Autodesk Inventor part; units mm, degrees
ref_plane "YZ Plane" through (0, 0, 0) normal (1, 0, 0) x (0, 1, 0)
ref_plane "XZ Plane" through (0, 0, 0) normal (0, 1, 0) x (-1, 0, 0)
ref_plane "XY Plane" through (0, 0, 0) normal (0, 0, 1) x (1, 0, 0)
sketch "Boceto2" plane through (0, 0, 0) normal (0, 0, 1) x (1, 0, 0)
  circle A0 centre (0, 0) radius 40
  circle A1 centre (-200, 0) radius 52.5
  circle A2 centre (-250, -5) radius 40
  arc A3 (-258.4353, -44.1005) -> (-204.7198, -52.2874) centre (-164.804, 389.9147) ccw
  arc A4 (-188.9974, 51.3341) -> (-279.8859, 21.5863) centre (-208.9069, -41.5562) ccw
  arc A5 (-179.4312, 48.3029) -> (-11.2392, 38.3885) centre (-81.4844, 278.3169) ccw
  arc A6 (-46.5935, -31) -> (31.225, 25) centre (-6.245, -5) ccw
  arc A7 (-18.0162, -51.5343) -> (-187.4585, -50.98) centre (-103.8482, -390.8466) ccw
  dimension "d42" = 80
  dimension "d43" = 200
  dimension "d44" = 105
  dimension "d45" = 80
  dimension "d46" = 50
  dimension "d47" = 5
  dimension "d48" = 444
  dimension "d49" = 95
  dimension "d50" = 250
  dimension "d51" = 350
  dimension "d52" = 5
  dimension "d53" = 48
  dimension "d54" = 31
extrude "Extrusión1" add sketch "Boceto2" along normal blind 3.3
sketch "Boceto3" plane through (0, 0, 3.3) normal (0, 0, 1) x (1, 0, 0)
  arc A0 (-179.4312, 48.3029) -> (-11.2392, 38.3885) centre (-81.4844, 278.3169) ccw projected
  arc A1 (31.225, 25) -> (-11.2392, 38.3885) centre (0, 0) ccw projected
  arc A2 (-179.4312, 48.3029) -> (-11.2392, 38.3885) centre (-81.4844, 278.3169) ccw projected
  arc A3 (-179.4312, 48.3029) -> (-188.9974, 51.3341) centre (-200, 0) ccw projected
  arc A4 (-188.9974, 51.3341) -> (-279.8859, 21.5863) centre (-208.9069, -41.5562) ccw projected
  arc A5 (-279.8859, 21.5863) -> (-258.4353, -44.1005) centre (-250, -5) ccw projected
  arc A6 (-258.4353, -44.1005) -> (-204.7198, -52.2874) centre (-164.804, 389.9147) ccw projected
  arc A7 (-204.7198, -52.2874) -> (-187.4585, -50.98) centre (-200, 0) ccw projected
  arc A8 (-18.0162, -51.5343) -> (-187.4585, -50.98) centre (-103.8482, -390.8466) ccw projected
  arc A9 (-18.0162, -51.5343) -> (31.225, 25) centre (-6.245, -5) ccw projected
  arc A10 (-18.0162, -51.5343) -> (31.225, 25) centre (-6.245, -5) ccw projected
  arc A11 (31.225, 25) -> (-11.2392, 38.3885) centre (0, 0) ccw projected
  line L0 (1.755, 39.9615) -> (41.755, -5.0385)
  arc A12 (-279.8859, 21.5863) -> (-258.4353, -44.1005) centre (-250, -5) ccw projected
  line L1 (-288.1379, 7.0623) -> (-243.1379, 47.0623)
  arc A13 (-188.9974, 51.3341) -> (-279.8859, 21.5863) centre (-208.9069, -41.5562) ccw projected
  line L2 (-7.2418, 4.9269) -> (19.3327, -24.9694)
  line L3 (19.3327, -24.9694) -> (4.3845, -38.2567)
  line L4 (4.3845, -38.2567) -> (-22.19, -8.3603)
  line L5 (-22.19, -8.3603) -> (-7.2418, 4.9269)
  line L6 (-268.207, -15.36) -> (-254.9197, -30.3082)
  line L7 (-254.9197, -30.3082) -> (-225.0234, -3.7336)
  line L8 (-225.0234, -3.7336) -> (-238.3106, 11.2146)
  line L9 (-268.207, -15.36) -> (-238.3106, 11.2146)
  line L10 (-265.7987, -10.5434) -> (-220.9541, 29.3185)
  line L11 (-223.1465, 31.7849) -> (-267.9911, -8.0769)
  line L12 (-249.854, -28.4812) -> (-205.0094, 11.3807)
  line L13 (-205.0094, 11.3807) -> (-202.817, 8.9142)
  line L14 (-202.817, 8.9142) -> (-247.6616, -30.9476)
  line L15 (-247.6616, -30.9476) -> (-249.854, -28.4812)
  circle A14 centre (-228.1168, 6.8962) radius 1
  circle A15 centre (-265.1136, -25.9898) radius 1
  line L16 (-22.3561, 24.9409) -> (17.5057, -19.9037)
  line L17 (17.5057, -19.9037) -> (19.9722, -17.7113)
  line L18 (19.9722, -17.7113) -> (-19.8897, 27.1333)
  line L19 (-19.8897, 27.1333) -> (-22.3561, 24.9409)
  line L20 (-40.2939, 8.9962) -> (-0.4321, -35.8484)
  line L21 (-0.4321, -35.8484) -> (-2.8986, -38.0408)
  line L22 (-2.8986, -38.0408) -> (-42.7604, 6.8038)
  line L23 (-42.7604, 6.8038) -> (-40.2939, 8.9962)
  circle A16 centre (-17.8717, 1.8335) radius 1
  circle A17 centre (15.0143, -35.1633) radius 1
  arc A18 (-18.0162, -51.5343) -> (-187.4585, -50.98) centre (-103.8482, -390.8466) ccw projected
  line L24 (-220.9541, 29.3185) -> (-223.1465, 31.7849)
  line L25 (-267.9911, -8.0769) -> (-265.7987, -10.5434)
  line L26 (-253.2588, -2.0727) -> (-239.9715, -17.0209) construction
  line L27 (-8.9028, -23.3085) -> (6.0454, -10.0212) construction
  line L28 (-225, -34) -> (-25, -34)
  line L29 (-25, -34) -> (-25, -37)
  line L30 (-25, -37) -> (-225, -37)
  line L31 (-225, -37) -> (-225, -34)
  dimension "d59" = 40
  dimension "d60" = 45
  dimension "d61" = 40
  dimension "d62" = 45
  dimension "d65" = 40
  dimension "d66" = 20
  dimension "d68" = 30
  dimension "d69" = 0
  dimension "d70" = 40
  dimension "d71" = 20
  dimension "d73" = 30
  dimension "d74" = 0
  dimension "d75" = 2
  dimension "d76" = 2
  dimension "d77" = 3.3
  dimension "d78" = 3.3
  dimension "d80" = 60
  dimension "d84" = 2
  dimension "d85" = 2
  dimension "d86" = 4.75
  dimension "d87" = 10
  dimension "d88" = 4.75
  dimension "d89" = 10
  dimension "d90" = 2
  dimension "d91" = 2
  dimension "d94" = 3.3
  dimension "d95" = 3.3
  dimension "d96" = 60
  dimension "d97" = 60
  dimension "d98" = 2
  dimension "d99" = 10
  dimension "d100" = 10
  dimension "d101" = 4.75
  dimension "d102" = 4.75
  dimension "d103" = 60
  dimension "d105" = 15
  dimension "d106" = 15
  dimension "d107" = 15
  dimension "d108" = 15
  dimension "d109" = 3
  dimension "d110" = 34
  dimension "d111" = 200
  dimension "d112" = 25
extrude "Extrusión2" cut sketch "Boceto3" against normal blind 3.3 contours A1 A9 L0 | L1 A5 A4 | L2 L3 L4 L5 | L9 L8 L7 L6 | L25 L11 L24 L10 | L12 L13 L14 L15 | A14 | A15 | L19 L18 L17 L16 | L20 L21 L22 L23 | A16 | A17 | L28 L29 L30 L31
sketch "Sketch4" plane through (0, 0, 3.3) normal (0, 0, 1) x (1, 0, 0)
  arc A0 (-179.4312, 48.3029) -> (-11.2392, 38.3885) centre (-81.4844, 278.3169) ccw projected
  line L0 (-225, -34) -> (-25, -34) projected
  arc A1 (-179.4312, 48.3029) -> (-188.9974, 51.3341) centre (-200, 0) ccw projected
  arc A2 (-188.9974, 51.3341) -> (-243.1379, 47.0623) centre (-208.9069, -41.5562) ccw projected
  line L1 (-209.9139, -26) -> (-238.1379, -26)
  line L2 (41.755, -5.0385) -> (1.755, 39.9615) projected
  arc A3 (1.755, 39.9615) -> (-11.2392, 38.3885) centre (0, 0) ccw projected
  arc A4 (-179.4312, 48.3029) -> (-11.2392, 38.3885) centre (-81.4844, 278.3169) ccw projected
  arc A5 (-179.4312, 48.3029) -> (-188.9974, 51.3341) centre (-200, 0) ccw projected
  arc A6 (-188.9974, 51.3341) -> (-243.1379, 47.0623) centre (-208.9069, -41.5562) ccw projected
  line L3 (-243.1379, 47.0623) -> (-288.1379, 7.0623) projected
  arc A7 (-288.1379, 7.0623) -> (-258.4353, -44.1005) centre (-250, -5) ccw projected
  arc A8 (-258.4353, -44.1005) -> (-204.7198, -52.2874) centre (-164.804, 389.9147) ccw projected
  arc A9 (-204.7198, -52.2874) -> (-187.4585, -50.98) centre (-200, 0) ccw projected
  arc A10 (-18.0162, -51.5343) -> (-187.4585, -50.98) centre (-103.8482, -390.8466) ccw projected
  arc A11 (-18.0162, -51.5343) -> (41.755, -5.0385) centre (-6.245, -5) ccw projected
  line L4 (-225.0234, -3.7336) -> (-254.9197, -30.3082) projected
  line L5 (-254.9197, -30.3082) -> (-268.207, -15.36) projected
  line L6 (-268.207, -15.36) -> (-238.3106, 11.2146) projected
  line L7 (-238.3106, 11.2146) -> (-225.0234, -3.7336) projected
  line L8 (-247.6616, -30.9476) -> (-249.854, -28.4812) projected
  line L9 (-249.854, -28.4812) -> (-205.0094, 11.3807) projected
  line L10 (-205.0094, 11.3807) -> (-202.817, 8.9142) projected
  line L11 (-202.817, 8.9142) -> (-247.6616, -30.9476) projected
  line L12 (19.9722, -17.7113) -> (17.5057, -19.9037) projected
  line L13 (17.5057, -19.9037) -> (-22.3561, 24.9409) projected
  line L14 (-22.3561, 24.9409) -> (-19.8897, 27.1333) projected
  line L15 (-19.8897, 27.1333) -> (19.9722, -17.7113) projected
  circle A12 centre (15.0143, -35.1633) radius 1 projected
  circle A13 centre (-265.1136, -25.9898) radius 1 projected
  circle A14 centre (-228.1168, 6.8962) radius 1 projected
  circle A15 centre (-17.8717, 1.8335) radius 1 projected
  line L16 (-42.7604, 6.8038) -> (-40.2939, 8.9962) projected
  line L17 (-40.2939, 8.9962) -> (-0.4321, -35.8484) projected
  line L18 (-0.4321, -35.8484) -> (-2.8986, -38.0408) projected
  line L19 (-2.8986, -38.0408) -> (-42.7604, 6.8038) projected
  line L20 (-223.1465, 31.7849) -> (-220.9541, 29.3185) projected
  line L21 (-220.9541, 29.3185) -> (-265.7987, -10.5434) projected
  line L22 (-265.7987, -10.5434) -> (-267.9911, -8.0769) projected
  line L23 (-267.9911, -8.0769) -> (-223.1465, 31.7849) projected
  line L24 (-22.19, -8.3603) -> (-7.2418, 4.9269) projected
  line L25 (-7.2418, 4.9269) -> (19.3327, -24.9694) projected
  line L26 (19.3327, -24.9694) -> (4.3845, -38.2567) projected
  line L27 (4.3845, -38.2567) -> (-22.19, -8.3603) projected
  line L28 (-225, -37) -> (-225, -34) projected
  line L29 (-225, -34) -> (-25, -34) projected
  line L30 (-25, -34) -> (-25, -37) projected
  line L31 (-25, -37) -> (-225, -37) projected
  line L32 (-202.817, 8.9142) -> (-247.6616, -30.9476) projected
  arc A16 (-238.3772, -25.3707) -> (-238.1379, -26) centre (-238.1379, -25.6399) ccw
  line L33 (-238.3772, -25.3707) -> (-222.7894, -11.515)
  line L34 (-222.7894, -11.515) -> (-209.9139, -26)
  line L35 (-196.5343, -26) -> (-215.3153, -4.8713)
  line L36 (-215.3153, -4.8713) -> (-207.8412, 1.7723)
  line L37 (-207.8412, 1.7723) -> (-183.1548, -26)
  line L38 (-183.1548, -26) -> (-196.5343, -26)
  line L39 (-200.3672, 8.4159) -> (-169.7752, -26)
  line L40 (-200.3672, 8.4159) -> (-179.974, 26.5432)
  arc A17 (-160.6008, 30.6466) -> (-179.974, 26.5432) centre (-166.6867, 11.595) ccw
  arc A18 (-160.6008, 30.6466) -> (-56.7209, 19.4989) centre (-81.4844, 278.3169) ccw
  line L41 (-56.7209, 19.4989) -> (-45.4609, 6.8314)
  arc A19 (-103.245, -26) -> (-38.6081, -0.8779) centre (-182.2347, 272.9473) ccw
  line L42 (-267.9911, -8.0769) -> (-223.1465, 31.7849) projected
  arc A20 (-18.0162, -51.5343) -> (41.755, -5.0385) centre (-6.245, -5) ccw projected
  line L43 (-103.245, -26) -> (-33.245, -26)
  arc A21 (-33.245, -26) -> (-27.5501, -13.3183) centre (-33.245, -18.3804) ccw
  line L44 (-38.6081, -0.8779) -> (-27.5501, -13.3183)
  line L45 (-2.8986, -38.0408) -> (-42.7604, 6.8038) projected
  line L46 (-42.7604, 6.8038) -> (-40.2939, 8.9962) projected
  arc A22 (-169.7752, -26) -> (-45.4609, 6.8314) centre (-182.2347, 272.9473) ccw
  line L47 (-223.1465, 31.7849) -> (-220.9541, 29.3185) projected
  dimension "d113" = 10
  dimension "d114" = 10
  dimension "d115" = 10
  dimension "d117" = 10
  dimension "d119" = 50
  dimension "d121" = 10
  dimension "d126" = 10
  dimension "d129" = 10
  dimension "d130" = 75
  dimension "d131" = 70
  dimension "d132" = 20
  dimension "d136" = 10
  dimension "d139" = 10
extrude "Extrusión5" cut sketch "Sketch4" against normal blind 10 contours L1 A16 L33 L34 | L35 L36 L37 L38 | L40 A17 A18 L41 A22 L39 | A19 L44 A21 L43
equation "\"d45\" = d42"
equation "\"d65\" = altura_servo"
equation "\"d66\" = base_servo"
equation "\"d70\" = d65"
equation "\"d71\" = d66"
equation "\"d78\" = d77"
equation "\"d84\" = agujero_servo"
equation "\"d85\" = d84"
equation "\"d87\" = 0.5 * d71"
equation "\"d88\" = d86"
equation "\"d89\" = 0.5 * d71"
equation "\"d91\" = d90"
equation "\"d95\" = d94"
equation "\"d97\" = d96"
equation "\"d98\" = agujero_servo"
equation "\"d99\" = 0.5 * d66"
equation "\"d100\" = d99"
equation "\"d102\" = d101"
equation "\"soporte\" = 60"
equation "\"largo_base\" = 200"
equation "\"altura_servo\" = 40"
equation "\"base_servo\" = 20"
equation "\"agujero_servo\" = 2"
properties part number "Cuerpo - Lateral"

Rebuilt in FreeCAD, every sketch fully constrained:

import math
import FreeCAD as App
import Part
import Sketcher

V = App.Vector


def add_polygon(sketch, points):
    """Adds a closed chain of lines whose ends are joined by coincident constraints."""
    first, n = sketch.GeometryCount, len(points)
    for a, b in zip(points, points[1:] + points[:1]):
        sketch.addGeometry(Part.LineSegment(App.Vector(*a, 0), App.Vector(*b, 0)), False)
    for i in range(n):
        sketch.addConstraint(Sketcher.Constraint("Coincident", first + i, 2, first + (i + 1) % n, 1))

doc = App.newDocument("Part")
body = doc.addObject("PartDesign::Body", "Body")

# Sketch on XY plane
sketch1 = doc.addObject("Sketcher::SketchObject", "Sketch")
body.addObject(sketch1)
sketch1.AttachmentSupport = (doc.XY_Plane, [""])
sketch1.MapMode = "FlatFace"
sketch1.addGeometry(Part.ArcOfCircle(Part.Circle(V(0, 0, 0), V(0, 0, 1), 40), math.radians(39), math.radians(106)), False)
sketch1.addGeometry(Part.ArcOfCircle(Part.Circle(V(-81, 278, 0), V(0, 0, 1), 250), math.radians(-113), math.radians(-74)), False)
sketch1.addGeometry(Part.ArcOfCircle(Part.Circle(V(-200, 0, 0), V(0, 0, 1), 52), math.radians(66.93), math.radians(77.9)), False)
sketch1.addGeometry(Part.ArcOfCircle(Part.Circle(V(-209, -42, 0), V(0, 0, 1), 95), math.radians(78), math.radians(138)), False)
sketch1.addGeometry(Part.ArcOfCircle(Part.Circle(V(-250, -5, 0), V(0, 0, 1), 40), math.radians(138), math.radians(258)), False)
sketch1.addGeometry(Part.ArcOfCircle(Part.Circle(V(-165, 390, 0), V(0, 0, 1), 444), math.radians(-102.17), math.radians(-95.16)), False)
sketch1.addGeometry(Part.ArcOfCircle(Part.Circle(V(-200, 0, 0), V(0, 0, 1), 52), math.radians(-95.16), math.radians(-76.18)), False)
sketch1.addGeometry(Part.ArcOfCircle(Part.Circle(V(-104, -391, 0), V(0, 0, 1), 350), math.radians(76), math.radians(104)), False)
sketch1.addGeometry(Part.ArcOfCircle(Part.Circle(V(-6, -5, 0), V(0, 0, 1), 48), math.radians(-104), math.radians(39)), False)
sketch1.addConstraint(Sketcher.Constraint("Tangent", 0, 2, 1, 2))
sketch1.addConstraint(Sketcher.Constraint("Tangent", 1, 1, 2, 1))
sketch1.addConstraint(Sketcher.Constraint("Tangent", 2, 2, 3, 1))
sketch1.addConstraint(Sketcher.Constraint("Tangent", 3, 2, 4, 1))
sketch1.addConstraint(Sketcher.Constraint("Tangent", 4, 2, 5, 1))
sketch1.addConstraint(Sketcher.Constraint("Tangent", 5, 2, 6, 1))
sketch1.addConstraint(Sketcher.Constraint("Tangent", 6, 2, 7, 2))
sketch1.addConstraint(Sketcher.Constraint("Tangent", 7, 1, 8, 1))
sketch1.addConstraint(Sketcher.Constraint("Tangent", 8, 2, 0, 1))
sketch1.addConstraint(Sketcher.Constraint("Coincident", 0, 3, -1, 1))
sketch1.addConstraint(Sketcher.Constraint("Coincident", 6, 3, 2, 3))
sketch1.addConstraint(Sketcher.Constraint("Equal", 0, 4))
sketch1.addConstraint(Sketcher.Constraint("Equal", 2, 6))
sketch1.addConstraint(Sketcher.Constraint("PointOnObject", 2, 3, -1))
sketch1.addConstraint(Sketcher.Constraint("Horizontal", 4, 3, 8, 3))
sketch1.addConstraint(Sketcher.Constraint("Radius", 0, 40.0))
sketch1.addConstraint(Sketcher.Constraint("Radius", 1, 250.0))
sketch1.addConstraint(Sketcher.Constraint("Radius", 3, 95.0))
sketch1.addConstraint(Sketcher.Constraint("Radius", 7, 350.0))
sketch1.addConstraint(Sketcher.Constraint("Radius", 8, 48.0))
sketch1.addConstraint(Sketcher.Constraint("Radius", 2, 52.5))
sketch1.addConstraint(Sketcher.Constraint("DistanceX", 2, 3, -1, 1, 200.0))
sketch1.addConstraint(Sketcher.Constraint("DistanceX", 4, 3, -1, 1, 250.0))
sketch1.addConstraint(Sketcher.Constraint("DistanceY", 4, 3, -1, 1, 5.0))
sketch1.addConstraint(Sketcher.Constraint("Radius", 5, 443.9862))
pad1 = doc.addObject("PartDesign::Pad", "Pad")
body.addObject(pad1)
pad1.Profile = sketch1
pad1.Length = 3.3

# Sketch on XY plane
sketch2 = doc.addObject("Sketcher::SketchObject", "Sketch001")
body.addObject(sketch2)
sketch2.AttachmentSupport = (doc.XY_Plane, [""])
sketch2.MapMode = "FlatFace"
sketch2.AttachmentOffset = App.Placement(V(0, 0, 3.3), App.Rotation())
sketch2.addGeometry(Part.ArcOfCircle(Part.Circle(V(0, 0, 0), V(0, 0, 1), 40), math.radians(39), math.radians(87)), False)  # 0
sketch2.addGeometry(Part.LineSegment(V(1.8, 40, 0), V(41.8, -5, 0)), False)  # 1
sketch2.addGeometry(Part.ArcOfCircle(Part.Circle(V(-6.2, -5, 0), V(0, 0, 1), 48), math.radians(0), math.radians(39)), False)  # 2
sketch2.addGeometry(Part.LineSegment(V(-288.1, 7.1, 0), V(-243.1, 47.1, 0)), False)  # 3
sketch2.addGeometry(Part.ArcOfCircle(Part.Circle(V(-208.9, -41.6, 0), V(0, 0, 1), 95), math.radians(111), math.radians(138)), False)  # 4
sketch2.addGeometry(Part.ArcOfCircle(Part.Circle(V(-250, -5, 0), V(0, 0, 1), 40), math.radians(138), math.radians(162)), False)  # 5
add_polygon(sketch2, [(19.3, -25), (-7.2, 4.9), (-22.2, -8.4), (4.4, -38.3)])  # lines 6-9
add_polygon(sketch2, [(-238.3, 11.2), (-268.2, -15.4), (-254.9, -30.3), (-225, -3.7)])  # lines 10-13
add_polygon(sketch2, [(-268, -8.1), (-265.8, -10.5), (-221, 29.3), (-223.1, 31.8)])  # lines 14-17
add_polygon(sketch2, [(-205, 11.4), (-249.9, -28.5), (-247.7, -30.9), (-202.8, 8.9)])  # lines 18-21
sketch2.addGeometry(Part.Circle(V(-228.1, 6.9, 0), V(0, 0, 1), 1), False)  # 22
sketch2.addGeometry(Part.Circle(V(-265.1, -26, 0), V(0, 0, 1), 1), False)  # 23
add_polygon(sketch2, [(-19.9, 27.1), (-22.4, 24.9), (17.5, -19.9), (20, -17.7)])  # lines 24-27
add_polygon(sketch2, [(-0.4, -35.8), (-40.3, 9), (-42.8, 6.8), (-2.9, -38)])  # lines 28-31
sketch2.addGeometry(Part.Circle(V(-17.9, 1.8, 0), V(0, 0, 1), 1), False)  # 32
sketch2.addGeometry(Part.Circle(V(15, -35.2, 0), V(0, 0, 1), 1), False)  # 33
add_polygon(sketch2, [(-25, -34), (-225, -34), (-225, -37), (-25, -37)])  # lines 34-37
sketch2.addConstraint(Sketcher.Constraint("Coincident", 0, 2, 1, 1))
sketch2.addConstraint(Sketcher.Constraint("Coincident", 1, 2, 2, 1))
sketch2.addConstraint(Sketcher.Constraint("Tangent", 2, 2, 0, 1))
sketch2.addConstraint(Sketcher.Constraint("Coincident", 3, 2, 4, 1))
sketch2.addConstraint(Sketcher.Constraint("Tangent", 4, 2, 5, 1))
sketch2.addConstraint(Sketcher.Constraint("Coincident", 5, 2, 3, 1))
sketch2.addConstraint(Sketcher.Constraint("Horizontal", 34))
sketch2.addConstraint(Sketcher.Constraint("Vertical", 35))
sketch2.addConstraint(Sketcher.Constraint("Horizontal", 36))
sketch2.addConstraint(Sketcher.Constraint("Vertical", 37))
sketch2.addConstraint(Sketcher.Constraint("Coincident", 0, 3, -1, 1))
sketch2.addConstraint(Sketcher.Constraint("Equal", 0, 5))
sketch2.addConstraint(Sketcher.Constraint("Equal", 22, 23))
sketch2.addConstraint(Sketcher.Constraint("Equal", 23, 32))
sketch2.addConstraint(Sketcher.Constraint("Equal", 32, 33))
sketch2.addConstraint(Sketcher.Constraint("Perpendicular", 1, 3))
sketch2.addConstraint(Sketcher.Constraint("Perpendicular", 3, 6))
sketch2.addConstraint(Sketcher.Constraint("Perpendicular", 6, 7))
sketch2.addConstraint(Sketcher.Constraint("Perpendicular", 7, 8))
sketch2.addConstraint(Sketcher.Constraint("Perpendicular", 8, 9))
sketch2.addConstraint(Sketcher.Constraint("Parallel", 9, 10))
sketch2.addConstraint(Sketcher.Constraint("Perpendicular", 10, 11))
sketch2.addConstraint(Sketcher.Constraint("Perpendicular", 11, 12))
sketch2.addConstraint(Sketcher.Constraint("Perpendicular", 12, 13))
sketch2.addConstraint(Sketcher.Constraint("Parallel", 13, 14))
sketch2.addConstraint(Sketcher.Constraint("Perpendicular", 14, 15))
sketch2.addConstraint(Sketcher.Constraint("Perpendicular", 15, 16))
sketch2.addConstraint(Sketcher.Constraint("Perpendicular", 16, 17))
sketch2.addConstraint(Sketcher.Constraint("Parallel", 17, 18))
sketch2.addConstraint(Sketcher.Constraint("Perpendicular", 18, 19))
sketch2.addConstraint(Sketcher.Constraint("Perpendicular", 19, 20))
sketch2.addConstraint(Sketcher.Constraint("Perpendicular", 20, 21))
sketch2.addConstraint(Sketcher.Constraint("Perpendicular", 21, 24))
sketch2.addConstraint(Sketcher.Constraint("Perpendicular", 24, 25))
sketch2.addConstraint(Sketcher.Constraint("Perpendicular", 25, 26))
sketch2.addConstraint(Sketcher.Constraint("Perpendicular", 26, 27))
sketch2.addConstraint(Sketcher.Constraint("Parallel", 27, 28))
sketch2.addConstraint(Sketcher.Constraint("Perpendicular", 28, 29))
sketch2.addConstraint(Sketcher.Constraint("Perpendicular", 29, 30))
sketch2.addConstraint(Sketcher.Constraint("Perpendicular", 30, 31))
sketch2.addConstraint(Sketcher.Constraint("Horizontal", 2, 3, 5, 3))
sketch2.addConstraint(Sketcher.Constraint("Equal", 1, 3))
sketch2.addConstraint(Sketcher.Constraint("Equal", 8, 10))
sketch2.addConstraint(Sketcher.Constraint("Equal", 9, 11))
sketch2.addConstraint(Sketcher.Constraint("Equal", 17, 18))
sketch2.addConstraint(Sketcher.Constraint("Equal", 16, 19))
sketch2.addConstraint(Sketcher.Constraint("Equal", 21, 24))
sketch2.addConstraint(Sketcher.Constraint("Equal", 20, 25))
sketch2.addConstraint(Sketcher.Constraint("Equal", 27, 28))
sketch2.addConstraint(Sketcher.Constraint("Equal", 26, 29))
sketch2.addConstraint(Sketcher.Constraint("Diameter", 22, 2.0))
sketch2.addConstraint(Sketcher.Constraint("Radius", 0, 40.0))
sketch2.addConstraint(Sketcher.Constraint("DistanceX", 34, 2, 34, 1, 200.0))
sketch2.addConstraint(Sketcher.Constraint("DistanceY", 35, 2, 35, 1, 3.0))
sketch2.addConstraint(Sketcher.Constraint("Distance", 6, 40.0))
sketch2.addConstraint(Sketcher.Constraint("Distance", 7, 20.0))
sketch2.addConstraint(Sketcher.Constraint("Distance", 15, 60.0))
sketch2.addConstraint(Sketcher.Constraint("DistanceY", -1, 1, 2, 2, 25.0))
sketch2.addConstraint(Sketcher.Constraint("DistanceY", 34, 2, -1, 1, 34.0))
sketch2.addConstraint(Sketcher.Constraint("DistanceX", 36, 2, -1, 1, 25.0))
sketch2.addConstraint(Sketcher.Constraint("Radius", 2, 48.0))
sketch2.addConstraint(Sketcher.Constraint("Radius", 4, 95.0))
sketch2.addConstraint(Sketcher.Constraint("DistanceX", 0, 2, 1, 2, 40.0))
sketch2.addConstraint(Sketcher.Constraint("DistanceY", 1, 2, 0, 2, 45.0))
sketch2.addConstraint(Sketcher.Constraint("Distance", 14, 3.3))
sketch2.addConstraint(Sketcher.Constraint("DistanceX", 5, 3, -1, 1, 250.0))
sketch2.addConstraint(Sketcher.Constraint("DistanceX", 7, 2, -1, 1, 22.19))
sketch2.addConstraint(Sketcher.Constraint("DistanceY", 10, 2, -1, 1, 15.36))
sketch2.addConstraint(Sketcher.Constraint("DistanceX", 22, 3, 4, 3, 19.21))
sketch2.addConstraint(Sketcher.Constraint("DistanceY", 22, 3, 4, 2, 14.69))
sketch2.addConstraint(Sketcher.Constraint("DistanceX", 32, 3, 6, 2, 10.63))
sketch2.addConstraint(Sketcher.Constraint("DistanceX", 4, 3, -1, 1, 208.907))
sketch2.addConstraint(Sketcher.Constraint("DistanceY", -1, 1, 6, 2, 4.927))
sketch2.addConstraint(Sketcher.Constraint("DistanceX", 10, 2, -1, 1, 268.207))
sketch2.addConstraint(Sketcher.Constraint("DistanceX", 15, 2, -1, 1, 220.954))
sketch2.addConstraint(Sketcher.Constraint("DistanceY", -1, 1, 16, 2, 31.785))
sketch2.addConstraint(Sketcher.Constraint("DistanceX", 18, 2, -1, 1, 249.854))
sketch2.addConstraint(Sketcher.Constraint("DistanceX", 24, 2, -1, 1, 22.356))
sketch2.addConstraint(Sketcher.Constraint("DistanceY", -1, 1, 24, 2, 24.941))
sketch2.addConstraint(Sketcher.Constraint("DistanceX", 28, 2, -1, 1, 40.294))
sketch2.addConstraint(Sketcher.Constraint("DistanceY", 23, 3, 22, 3, 32.886))
sketch2.addConstraint(Sketcher.Constraint("DistanceX", 32, 3, 33, 3, 32.886))
sketch2.addConstraint(Sketcher.Constraint("DistanceY", 4, 3, 33, 3, 6.393))
sketch2.addConstraint(Sketcher.Constraint("DistanceY", 32, 3, 0, 2, 38.128))
sketch2.addConstraint(Sketcher.Constraint("DistanceX", 23, 3, 11, 2, 10.194))
sketch2.addConstraint(Sketcher.Constraint("DistanceY", 11, 2, 18, 2, 1.827))
sketch2.addConstraint(Sketcher.Constraint("DistanceY", 28, 2, 27, 2, 18.137))
pocket1 = doc.addObject("PartDesign::Pocket", "Pocket")
body.addObject(pocket1)
pocket1.Profile = sketch2
pocket1.Length = 3.3

# Sketch on XY plane
sketch3 = doc.addObject("Sketcher::SketchObject", "Sketch002")
body.addObject(sketch3)
sketch3.AttachmentSupport = (doc.XY_Plane, [""])
sketch3.MapMode = "FlatFace"
sketch3.AttachmentOffset = App.Placement(V(0, 0, 3.3), App.Rotation())
sketch3.addGeometry(Part.LineSegment(V(-238.14, -26, 0), V(-209.91, -26, 0)), False)  # 0
sketch3.addGeometry(Part.LineSegment(V(-209.91, -26, 0), V(-222.79, -11.52, 0)), False)  # 1
sketch3.addGeometry(Part.LineSegment(V(-222.79, -11.52, 0), V(-238.38, -25.37, 0)), False)  # 2
sketch3.addGeometry(Part.ArcOfCircle(Part.Circle(V(-238.14, -25.64, 0), V(0, 0, 1), 0.36), math.radians(132), math.radians(270)), False)  # 3
add_polygon(sketch3, [(-215.32, -4.87), (-196.53, -26), (-183.15, -26), (-207.84, 1.77)])  # lines 4-7
sketch3.addGeometry(Part.LineSegment(V(-179.97, 26.54, 0), V(-200.37, 8.42, 0)), False)  # 8
sketch3.addGeometry(Part.LineSegment(V(-200.37, 8.42, 0), V(-169.78, -26, 0)), False)  # 9
sketch3.addGeometry(Part.ArcOfCircle(Part.Circle(V(-182.23, 272.95, 0), V(0, 0, 1), 299.21), math.radians(-88), math.radians(-63)), False)  # 10
sketch3.addGeometry(Part.LineSegment(V(-45.46, 6.83, 0), V(-56.72, 19.5, 0)), False)  # 11
sketch3.addGeometry(Part.ArcOfCircle(Part.Circle(V(-81.48, 278.32, 0), V(0, 0, 1), 260), math.radians(-108), math.radians(-85)), False)  # 12
sketch3.addGeometry(Part.ArcOfCircle(Part.Circle(V(-166.69, 11.6, 0), V(0, 0, 1), 20), math.radians(72), math.radians(132)), False)  # 13
sketch3.addGeometry(Part.ArcOfCircle(Part.Circle(V(-182.23, 272.94, 0), V(0, 0, 1), 309.2), math.radians(-75.2), math.radians(-62.32)), False)  # 14
sketch3.addGeometry(Part.LineSegment(V(-103.25, -26, 0), V(-33.24, -26, 0)), False)  # 15
sketch3.addGeometry(Part.ArcOfCircle(Part.Circle(V(-33.24, -18.38, 0), V(0, 0, 1), 7.62), math.radians(-90), math.radians(42)), False)  # 16
sketch3.addGeometry(Part.LineSegment(V(-27.55, -13.32, 0), V(-38.61, -0.88, 0)), False)  # 17
sketch3.addConstraint(Sketcher.Constraint("Coincident", 0, 2, 1, 1))
sketch3.addConstraint(Sketcher.Constraint("Coincident", 1, 2, 2, 1))
sketch3.addConstraint(Sketcher.Constraint("Tangent", 2, 2, 3, 1))
sketch3.addConstraint(Sketcher.Constraint("Tangent", 3, 2, 0, 1))
sketch3.addConstraint(Sketcher.Constraint("Coincident", 8, 2, 9, 1))
sketch3.addConstraint(Sketcher.Constraint("Coincident", 9, 2, 10, 1))
sketch3.addConstraint(Sketcher.Constraint("Coincident", 10, 2, 11, 1))
sketch3.addConstraint(Sketcher.Constraint("Coincident", 11, 2, 12, 2))
sketch3.addConstraint(Sketcher.Constraint("Tangent", 12, 1, 13, 1))
sketch3.addConstraint(Sketcher.Constraint("Tangent", 13, 2, 8, 1))
sketch3.addConstraint(Sketcher.Constraint("Coincident", 14, 1, 15, 1))
sketch3.addConstraint(Sketcher.Constraint("Tangent", 15, 2, 16, 1))
sketch3.addConstraint(Sketcher.Constraint("Tangent", 16, 2, 17, 1))
sketch3.addConstraint(Sketcher.Constraint("Coincident", 17, 2, 14, 2))
sketch3.addConstraint(Sketcher.Constraint("Horizontal", 0))
sketch3.addConstraint(Sketcher.Constraint("Horizontal", 5))
sketch3.addConstraint(Sketcher.Constraint("Horizontal", 15))
sketch3.addConstraint(Sketcher.Constraint("Perpendicular", 1, 2))
sketch3.addConstraint(Sketcher.Constraint("Perpendicular", 2, 4))
sketch3.addConstraint(Sketcher.Constraint("Parallel", 4, 6))
sketch3.addConstraint(Sketcher.Constraint("Perpendicular", 6, 7))
sketch3.addConstraint(Sketcher.Constraint("Parallel", 7, 8))
sketch3.addConstraint(Sketcher.Constraint("Perpendicular", 8, 9))
sketch3.addConstraint(Sketcher.Constraint("Parallel", 9, 11))
sketch3.addConstraint(Sketcher.Constraint("Parallel", 11, 17))
sketch3.addConstraint(Sketcher.Constraint("Horizontal", 3, 2, 4, 2))
sketch3.addConstraint(Sketcher.Constraint("Horizontal", 5, 2, 9, 2))
sketch3.addConstraint(Sketcher.Constraint("Horizontal", 9, 2, 14, 1))
sketch3.addConstraint(Sketcher.Constraint("Radius", 13, 20.0))
sketch3.addConstraint(Sketcher.Constraint("DistanceX", 15, 1, 15, 2, 70.0))
sketch3.addConstraint(Sketcher.Constraint("Distance", 7, 10.0))
sketch3.addConstraint(Sketcher.Constraint("Radius", 12, 260.0))
sketch3.addConstraint(Sketcher.Constraint("DistanceY", 0, 2, -1, 1, 26.0))
sketch3.addConstraint(Sketcher.Constraint("Radius", 3, 0.3602))
sketch3.addConstraint(Sketcher.Constraint("Radius", 10, 299.2068))
sketch3.addConstraint(Sketcher.Constraint("Radius", 14, 309.2042))
sketch3.addConstraint(Sketcher.Constraint("Radius", 16, 7.6196))
sketch3.addConstraint(Sketcher.Constraint("DistanceX", 0, 1, 0, 2, 28.224))
sketch3.addConstraint(Sketcher.Constraint("DistanceX", 16, 2, -1, 1, 27.55))
sketch3.addConstraint(Sketcher.Constraint("DistanceX", 0, 2, 14, 3, 27.68))
sketch3.addConstraint(Sketcher.Constraint("DistanceY", 1, 2, 13, 3, 23.11))
sketch3.addConstraint(Sketcher.Constraint("Distance", 6, 37.158))
sketch3.addConstraint(Sketcher.Constraint("Distance", 9, 46.047))
sketch3.addConstraint(Sketcher.Constraint("DistanceX", 5, 1, 5, 2, 13.3795))
sketch3.addConstraint(Sketcher.Constraint("DistanceX", 3, 3, -1, 1, 238.138))
sketch3.addConstraint(Sketcher.Constraint("DistanceY", -1, 1, 12, 3, 278.317))
sketch3.addConstraint(Sketcher.Constraint("DistanceX", 10, 2, -1, 1, 45.461))
sketch3.addConstraint(Sketcher.Constraint("DistanceX", 11, 2, -1, 1, 56.721))
sketch3.addConstraint(Sketcher.Constraint("DistanceY", -1, 1, 11, 2, 19.499))
sketch3.addConstraint(Sketcher.Constraint("DistanceX", 1, 2, 4, 2, 26.255))
pocket2 = doc.addObject("PartDesign::Pocket", "Pocket001")
body.addObject(pocket2)
pocket2.Profile = sketch3
pocket2.Length = 10

doc.recompute()
